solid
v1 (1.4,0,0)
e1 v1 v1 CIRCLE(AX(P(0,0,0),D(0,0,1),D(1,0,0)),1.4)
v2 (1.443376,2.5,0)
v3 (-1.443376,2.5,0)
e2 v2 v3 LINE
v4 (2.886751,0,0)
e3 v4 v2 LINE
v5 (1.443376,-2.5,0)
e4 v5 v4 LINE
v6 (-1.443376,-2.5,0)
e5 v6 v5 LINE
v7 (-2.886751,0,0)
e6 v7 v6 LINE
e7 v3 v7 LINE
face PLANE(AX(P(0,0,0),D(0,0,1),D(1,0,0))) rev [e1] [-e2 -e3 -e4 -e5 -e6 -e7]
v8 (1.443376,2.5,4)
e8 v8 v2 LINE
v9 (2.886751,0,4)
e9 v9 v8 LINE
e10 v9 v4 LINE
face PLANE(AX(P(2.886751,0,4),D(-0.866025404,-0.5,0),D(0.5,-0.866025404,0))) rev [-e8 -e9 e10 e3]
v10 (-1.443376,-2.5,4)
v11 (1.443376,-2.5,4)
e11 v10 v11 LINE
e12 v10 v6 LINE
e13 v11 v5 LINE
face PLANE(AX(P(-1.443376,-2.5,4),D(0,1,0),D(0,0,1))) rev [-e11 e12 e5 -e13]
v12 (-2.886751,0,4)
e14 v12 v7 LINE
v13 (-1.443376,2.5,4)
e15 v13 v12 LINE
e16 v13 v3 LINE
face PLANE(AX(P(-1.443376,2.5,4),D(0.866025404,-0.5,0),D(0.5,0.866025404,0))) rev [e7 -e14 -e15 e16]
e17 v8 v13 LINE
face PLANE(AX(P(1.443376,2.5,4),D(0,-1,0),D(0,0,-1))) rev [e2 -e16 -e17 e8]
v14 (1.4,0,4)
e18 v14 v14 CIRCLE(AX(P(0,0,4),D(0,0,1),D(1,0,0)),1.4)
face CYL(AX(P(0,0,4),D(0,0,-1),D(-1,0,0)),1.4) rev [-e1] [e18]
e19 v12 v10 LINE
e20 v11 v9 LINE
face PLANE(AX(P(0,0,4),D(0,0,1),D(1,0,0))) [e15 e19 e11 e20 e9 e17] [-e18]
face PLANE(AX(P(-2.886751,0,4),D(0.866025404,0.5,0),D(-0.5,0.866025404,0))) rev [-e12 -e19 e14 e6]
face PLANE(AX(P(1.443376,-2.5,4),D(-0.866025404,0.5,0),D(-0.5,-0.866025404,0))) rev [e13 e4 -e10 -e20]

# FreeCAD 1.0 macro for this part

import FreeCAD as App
import Part
import Sketcher
Q = App.Units.Quantity

doc = App.newDocument("Part")
body = doc.addObject("PartDesign::Body", "Body")

sketch1 = body.newObject("Sketcher::SketchObject", "Sketch")
sketch1.AttachmentSupport = (doc.getObject("XY_Plane"), [""])
sketch1.MapMode = "FlatFace"
sketch1.addGeometry([
    Part.LineSegment(App.Vector(2.886751, 0, 0), App.Vector(1.443376, 2.5, 0)),
    Part.LineSegment(App.Vector(1.443376, 2.5, 0), App.Vector(-1.443376, 2.5, 0)),
    Part.LineSegment(App.Vector(-1.443376, 2.5, 0), App.Vector(-2.886751, 0, 0)),
    Part.LineSegment(App.Vector(-2.886751, 0, 0), App.Vector(-1.443376, -2.5, 0)),
    Part.LineSegment(App.Vector(-1.443376, -2.5, 0), App.Vector(1.443376, -2.5, 0)),
    Part.LineSegment(App.Vector(1.443376, -2.5, 0), App.Vector(2.886751, 0, 0)),
    Part.Circle(App.Vector(0, 0, 0), App.Vector(0, 0, 1), 1.4),
], False)
sketch1.addConstraint([
    Sketcher.Constraint("Coincident", 0, 2, 1, 1),
    Sketcher.Constraint("Coincident", 1, 2, 2, 1),
    Sketcher.Constraint("Coincident", 2, 2, 3, 1),
    Sketcher.Constraint("Coincident", 3, 2, 4, 1),
    Sketcher.Constraint("Coincident", 4, 2, 5, 1),
    Sketcher.Constraint("Coincident", 5, 2, 0, 1),
    Sketcher.Constraint("Horizontal", 1),
    Sketcher.Constraint("Horizontal", 4),
    Sketcher.Constraint("Coincident", 6, 3, -1, 1),
    Sketcher.Constraint("Symmetric", 0, 2, 3, 2, -1, 1),
    Sketcher.Constraint("Symmetric", 2, 2, 5, 2, -1, 1),
    Sketcher.Constraint("PointOnObject", 2, 2, -1),
    Sketcher.Constraint("Parallel", 2, 5),
    Sketcher.Constraint("Vertical", 1, 2, 3, 2),
    Sketcher.Constraint("Diameter", 6, 2.8),
    Sketcher.Constraint("Angle", 0, Q("120 deg")),
    Sketcher.Constraint("DistanceY", 3, 2, 1, 2, 5.0),
    Sketcher.Constraint("DistanceX", 1, 2, 1, 1, 2.886751),
])
pad1 = body.newObject("PartDesign::Pad", "Pad")
pad1.Profile = sketch1
pad1.Length = 4

doc.recompute()
